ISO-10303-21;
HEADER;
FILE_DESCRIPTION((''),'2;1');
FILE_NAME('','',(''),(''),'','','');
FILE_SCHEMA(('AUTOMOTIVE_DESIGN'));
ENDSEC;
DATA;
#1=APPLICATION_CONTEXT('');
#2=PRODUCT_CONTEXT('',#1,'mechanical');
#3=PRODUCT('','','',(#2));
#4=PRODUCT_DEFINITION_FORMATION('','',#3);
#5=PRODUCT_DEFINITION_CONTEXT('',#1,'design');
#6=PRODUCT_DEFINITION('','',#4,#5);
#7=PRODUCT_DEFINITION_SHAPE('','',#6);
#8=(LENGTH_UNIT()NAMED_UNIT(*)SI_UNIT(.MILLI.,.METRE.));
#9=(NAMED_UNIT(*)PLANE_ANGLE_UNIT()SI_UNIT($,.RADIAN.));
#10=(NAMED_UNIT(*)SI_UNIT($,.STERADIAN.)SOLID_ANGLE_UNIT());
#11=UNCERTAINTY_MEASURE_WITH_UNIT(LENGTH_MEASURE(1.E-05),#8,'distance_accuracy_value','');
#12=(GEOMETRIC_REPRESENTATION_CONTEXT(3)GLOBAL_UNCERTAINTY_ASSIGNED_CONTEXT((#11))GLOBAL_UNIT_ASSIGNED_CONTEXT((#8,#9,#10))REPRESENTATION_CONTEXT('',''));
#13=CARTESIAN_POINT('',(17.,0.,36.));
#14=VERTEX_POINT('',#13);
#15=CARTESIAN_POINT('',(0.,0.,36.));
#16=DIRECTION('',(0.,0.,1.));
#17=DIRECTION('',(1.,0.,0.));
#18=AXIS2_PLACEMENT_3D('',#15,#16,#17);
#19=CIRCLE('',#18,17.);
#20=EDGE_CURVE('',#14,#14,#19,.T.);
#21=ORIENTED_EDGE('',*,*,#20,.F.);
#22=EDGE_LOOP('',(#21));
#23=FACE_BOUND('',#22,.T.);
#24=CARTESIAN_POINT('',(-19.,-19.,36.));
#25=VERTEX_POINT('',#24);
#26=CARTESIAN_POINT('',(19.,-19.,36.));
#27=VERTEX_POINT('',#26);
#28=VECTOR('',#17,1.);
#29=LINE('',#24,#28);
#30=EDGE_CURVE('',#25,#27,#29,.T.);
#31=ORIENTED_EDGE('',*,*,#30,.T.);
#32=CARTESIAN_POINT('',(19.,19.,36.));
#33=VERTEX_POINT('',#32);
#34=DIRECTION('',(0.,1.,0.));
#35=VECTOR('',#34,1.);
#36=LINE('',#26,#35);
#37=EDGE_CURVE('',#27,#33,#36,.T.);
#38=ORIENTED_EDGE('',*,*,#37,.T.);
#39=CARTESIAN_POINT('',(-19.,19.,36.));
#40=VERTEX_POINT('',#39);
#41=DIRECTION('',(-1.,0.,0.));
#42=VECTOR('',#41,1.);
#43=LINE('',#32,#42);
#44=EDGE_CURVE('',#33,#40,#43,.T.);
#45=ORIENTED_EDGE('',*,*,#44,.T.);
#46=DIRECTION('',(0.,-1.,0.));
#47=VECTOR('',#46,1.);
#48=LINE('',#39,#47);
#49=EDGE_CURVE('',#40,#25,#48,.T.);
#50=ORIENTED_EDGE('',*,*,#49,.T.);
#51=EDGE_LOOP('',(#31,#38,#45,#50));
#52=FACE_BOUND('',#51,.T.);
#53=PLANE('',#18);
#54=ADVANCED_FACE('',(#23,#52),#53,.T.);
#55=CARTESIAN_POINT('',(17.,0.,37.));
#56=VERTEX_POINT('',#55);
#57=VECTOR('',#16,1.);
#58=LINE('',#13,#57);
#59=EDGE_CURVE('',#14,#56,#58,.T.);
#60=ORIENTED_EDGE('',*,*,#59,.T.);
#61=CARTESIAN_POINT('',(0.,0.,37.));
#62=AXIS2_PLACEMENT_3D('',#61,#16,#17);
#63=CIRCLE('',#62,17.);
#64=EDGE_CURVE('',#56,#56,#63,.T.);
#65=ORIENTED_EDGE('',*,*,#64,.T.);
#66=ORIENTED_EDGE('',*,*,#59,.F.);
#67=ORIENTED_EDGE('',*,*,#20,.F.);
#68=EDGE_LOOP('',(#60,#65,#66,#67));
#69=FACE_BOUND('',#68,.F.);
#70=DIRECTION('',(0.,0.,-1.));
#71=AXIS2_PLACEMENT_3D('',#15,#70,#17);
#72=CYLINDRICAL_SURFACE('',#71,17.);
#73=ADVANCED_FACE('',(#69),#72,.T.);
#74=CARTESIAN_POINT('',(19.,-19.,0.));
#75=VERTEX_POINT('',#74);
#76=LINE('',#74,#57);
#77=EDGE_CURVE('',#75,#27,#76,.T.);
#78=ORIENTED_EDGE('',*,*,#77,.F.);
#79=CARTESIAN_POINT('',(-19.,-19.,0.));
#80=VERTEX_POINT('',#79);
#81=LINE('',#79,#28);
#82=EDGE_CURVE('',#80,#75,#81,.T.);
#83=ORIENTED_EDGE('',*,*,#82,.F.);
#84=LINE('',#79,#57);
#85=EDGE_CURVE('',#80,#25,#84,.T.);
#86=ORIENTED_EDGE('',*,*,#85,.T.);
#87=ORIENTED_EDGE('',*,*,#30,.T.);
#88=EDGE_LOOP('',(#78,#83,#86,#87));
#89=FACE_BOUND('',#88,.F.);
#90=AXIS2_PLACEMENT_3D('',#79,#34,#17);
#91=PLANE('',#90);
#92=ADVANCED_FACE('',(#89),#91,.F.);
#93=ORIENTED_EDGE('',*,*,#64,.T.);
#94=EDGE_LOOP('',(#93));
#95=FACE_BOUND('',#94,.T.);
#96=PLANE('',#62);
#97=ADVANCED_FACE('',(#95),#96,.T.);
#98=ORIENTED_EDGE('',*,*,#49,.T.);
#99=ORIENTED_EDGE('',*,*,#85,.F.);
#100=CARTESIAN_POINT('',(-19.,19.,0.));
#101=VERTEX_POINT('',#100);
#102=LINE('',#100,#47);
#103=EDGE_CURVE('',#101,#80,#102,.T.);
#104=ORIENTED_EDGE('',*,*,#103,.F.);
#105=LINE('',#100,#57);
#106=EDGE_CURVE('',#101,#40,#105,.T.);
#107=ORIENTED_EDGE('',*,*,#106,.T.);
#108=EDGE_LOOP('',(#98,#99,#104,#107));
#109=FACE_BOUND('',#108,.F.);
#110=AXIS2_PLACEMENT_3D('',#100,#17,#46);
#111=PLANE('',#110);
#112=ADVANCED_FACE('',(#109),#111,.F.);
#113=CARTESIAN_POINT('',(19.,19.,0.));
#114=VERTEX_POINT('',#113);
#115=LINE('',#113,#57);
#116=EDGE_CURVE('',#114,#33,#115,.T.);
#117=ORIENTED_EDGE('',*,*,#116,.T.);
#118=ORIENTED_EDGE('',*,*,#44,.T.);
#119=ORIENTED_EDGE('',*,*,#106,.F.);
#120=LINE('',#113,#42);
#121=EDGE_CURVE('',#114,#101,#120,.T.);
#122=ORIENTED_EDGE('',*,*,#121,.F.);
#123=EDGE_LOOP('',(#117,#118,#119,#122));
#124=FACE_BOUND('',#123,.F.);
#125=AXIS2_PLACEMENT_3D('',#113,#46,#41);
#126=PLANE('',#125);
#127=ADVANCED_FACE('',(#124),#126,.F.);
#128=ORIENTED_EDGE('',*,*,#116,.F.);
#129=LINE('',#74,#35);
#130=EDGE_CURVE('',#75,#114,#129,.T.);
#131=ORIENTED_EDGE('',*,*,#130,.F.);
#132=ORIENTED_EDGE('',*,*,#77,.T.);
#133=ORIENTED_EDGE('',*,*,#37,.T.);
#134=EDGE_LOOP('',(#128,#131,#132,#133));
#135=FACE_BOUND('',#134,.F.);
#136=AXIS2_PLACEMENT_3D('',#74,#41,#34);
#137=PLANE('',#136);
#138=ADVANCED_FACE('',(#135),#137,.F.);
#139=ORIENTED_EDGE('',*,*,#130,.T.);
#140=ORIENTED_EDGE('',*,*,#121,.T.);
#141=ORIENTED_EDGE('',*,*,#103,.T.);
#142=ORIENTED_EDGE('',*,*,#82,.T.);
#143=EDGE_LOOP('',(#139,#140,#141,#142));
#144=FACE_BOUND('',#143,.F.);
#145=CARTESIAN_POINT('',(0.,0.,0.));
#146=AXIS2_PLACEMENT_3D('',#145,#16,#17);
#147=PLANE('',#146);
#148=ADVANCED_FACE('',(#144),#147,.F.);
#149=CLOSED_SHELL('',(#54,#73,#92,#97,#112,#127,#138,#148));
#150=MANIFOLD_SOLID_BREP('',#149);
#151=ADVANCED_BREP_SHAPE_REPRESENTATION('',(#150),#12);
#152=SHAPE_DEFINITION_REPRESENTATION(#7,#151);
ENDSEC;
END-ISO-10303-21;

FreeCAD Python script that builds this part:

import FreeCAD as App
import Part
import Sketcher

doc = App.newDocument("Part")
body = doc.addObject("PartDesign::Body", "Body")

# Sketch on XY plane
sketch1 = body.newObject("Sketcher::SketchObject", "Sketch")
sketch1.AttachmentSupport = (doc.getObject("XY_Plane"), [""])
sketch1.MapMode = "FlatFace"
sketch1.addGeometry([
    Part.LineSegment(App.Vector(-19, 19, 0), App.Vector(-19, -19, 0)),
    Part.LineSegment(App.Vector(-19, -19, 0), App.Vector(19, -19, 0)),
    Part.LineSegment(App.Vector(19, -19, 0), App.Vector(19, 19, 0)),
    Part.LineSegment(App.Vector(19, 19, 0), App.Vector(-19, 19, 0)),
], False)
sketch1.addConstraint([
    Sketcher.Constraint("Coincident", 0, 2, 1, 1),
    Sketcher.Constraint("Coincident", 1, 2, 2, 1),
    Sketcher.Constraint("Coincident", 2, 2, 3, 1),
    Sketcher.Constraint("Coincident", 3, 2, 0, 1),
    Sketcher.Constraint("Vertical", 0),
    Sketcher.Constraint("Horizontal", 1),
    Sketcher.Constraint("Vertical", 2),
    Sketcher.Constraint("Horizontal", 3),
    Sketcher.Constraint("Symmetric", 0, 2, 2, 2, -1, 1),
    Sketcher.Constraint("Equal", 3, 0),
    Sketcher.Constraint("DistanceX", 1, 1, 1, 2, 38.0),
])
pad1 = body.newObject("PartDesign::Pad", "Pad")
pad1.Profile = sketch1
pad1.Length = 36

# Sketch on XY plane
sketch2 = body.newObject("Sketcher::SketchObject", "Sketch001")
sketch2.AttachmentSupport = (doc.getObject("XY_Plane"), [""])
sketch2.MapMode = "FlatFace"
sketch2.AttachmentOffset = App.Placement(App.Vector(0, 0, 36), App.Rotation())
sketch2.addGeometry(Part.Circle(App.Vector(0, 0, 0), App.Vector(0, 0, 1), 17), False)
sketch2.addConstraint([
    Sketcher.Constraint("Coincident", 0, 3, -1, 1),
    Sketcher.Constraint("Diameter", 0, 34.0),
])
pad2 = body.newObject("PartDesign::Pad", "Pad001")
pad2.Profile = sketch2
pad2.Length = 1

doc.recompute()
